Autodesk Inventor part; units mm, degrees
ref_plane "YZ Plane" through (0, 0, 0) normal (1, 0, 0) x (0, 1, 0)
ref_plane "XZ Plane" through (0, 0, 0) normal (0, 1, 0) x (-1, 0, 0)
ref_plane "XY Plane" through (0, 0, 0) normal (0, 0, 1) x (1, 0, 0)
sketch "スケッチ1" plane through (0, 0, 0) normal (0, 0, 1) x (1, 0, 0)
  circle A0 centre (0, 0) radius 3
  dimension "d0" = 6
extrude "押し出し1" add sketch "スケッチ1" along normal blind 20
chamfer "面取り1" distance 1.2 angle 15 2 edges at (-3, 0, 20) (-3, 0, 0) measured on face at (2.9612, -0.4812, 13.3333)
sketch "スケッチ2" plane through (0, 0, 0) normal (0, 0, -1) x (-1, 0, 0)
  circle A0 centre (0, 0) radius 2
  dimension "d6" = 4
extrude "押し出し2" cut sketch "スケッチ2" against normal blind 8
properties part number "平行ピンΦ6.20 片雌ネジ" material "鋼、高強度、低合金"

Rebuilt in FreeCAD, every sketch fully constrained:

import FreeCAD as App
import Part
import Sketcher
from FreeCAD import Vector
Q = App.Units.Quantity


def edges_at(feature, points):
    """Names of the edges that pass closest to the given points."""
    edges = feature.Shape.Edges
    near = lambda p: min(range(len(edges)), key=lambda i: edges[i].distToShape(Part.Vertex(*p))[0])
    return sorted({f"Edge{near(p) + 1}" for p in points})

doc = App.newDocument("Part")
params = doc.addObject("Spreadsheet::Sheet", "Params")
for row, (alias, value) in enumerate([
    ("sketch1_diameter", "6 mm"),
    ("pad1_length", "20 mm"),
    ("chamfer_size", "1.2 mm"),
    ("sketch2_diameter", "4 mm"),
    ("pocket1_length", "8 mm"),
], start=1):
    params.set(f"A{row}", alias)
    params.set(f"B{row}", "=" + value)
    params.setAlias(f"B{row}", alias)

body = doc.addObject("PartDesign::Body", "Body")

# Sketch on XY plane
sketch1 = body.newObject("Sketcher::SketchObject", "Sketch")
sketch1.AttachmentSupport = (doc.getObject("XY_Plane"), [""])
sketch1.MapMode = "FlatFace"
sketch1.addGeometry(Part.Circle(Vector(0, 0, 0), Vector(0, 0, 1), 3), False)
sketch1.addConstraint(Sketcher.Constraint("Coincident", 0, 3, -1, 1))
sketch1.addConstraint(Sketcher.Constraint("Diameter", 0, Q("6 mm")))
sketch1.setExpression("Constraints[1]", "Params.sketch1_diameter")
pad1 = body.newObject("PartDesign::Pad", "Pad")
pad1.Profile = sketch1
pad1.setExpression("Length", "Params.pad1_length")
doc.recompute()

chamfer = body.newObject("PartDesign::Chamfer", "Chamfer")
chamfer.Base = (pad1, edges_at(pad1, [(-3, 0, 20), (-3, 0, 0)]))
chamfer.ChamferType = "Distance and Angle"
chamfer.setExpression("Size", "Params.chamfer_size")
chamfer.Angle = 15

# Sketch on XY plane
sketch2 = body.newObject("Sketcher::SketchObject", "Sketch001")
sketch2.AttachmentSupport = (doc.getObject("XY_Plane"), [""])
sketch2.MapMode = "FlatFace"
sketch2.addGeometry(Part.Circle(Vector(0, 0, 0), Vector(0, 0, 1), 2), False)
sketch2.addConstraint(Sketcher.Constraint("Coincident", 0, 3, -1, 1))
sketch2.addConstraint(Sketcher.Constraint("Diameter", 0, Q("4 mm")))
sketch2.setExpression("Constraints[1]", "Params.sketch2_diameter")
pocket1 = body.newObject("PartDesign::Pocket", "Pocket")
pocket1.Profile = sketch2
pocket1.setExpression("Length", "Params.pocket1_length")
pocket1.Reversed = True

doc.recompute()
